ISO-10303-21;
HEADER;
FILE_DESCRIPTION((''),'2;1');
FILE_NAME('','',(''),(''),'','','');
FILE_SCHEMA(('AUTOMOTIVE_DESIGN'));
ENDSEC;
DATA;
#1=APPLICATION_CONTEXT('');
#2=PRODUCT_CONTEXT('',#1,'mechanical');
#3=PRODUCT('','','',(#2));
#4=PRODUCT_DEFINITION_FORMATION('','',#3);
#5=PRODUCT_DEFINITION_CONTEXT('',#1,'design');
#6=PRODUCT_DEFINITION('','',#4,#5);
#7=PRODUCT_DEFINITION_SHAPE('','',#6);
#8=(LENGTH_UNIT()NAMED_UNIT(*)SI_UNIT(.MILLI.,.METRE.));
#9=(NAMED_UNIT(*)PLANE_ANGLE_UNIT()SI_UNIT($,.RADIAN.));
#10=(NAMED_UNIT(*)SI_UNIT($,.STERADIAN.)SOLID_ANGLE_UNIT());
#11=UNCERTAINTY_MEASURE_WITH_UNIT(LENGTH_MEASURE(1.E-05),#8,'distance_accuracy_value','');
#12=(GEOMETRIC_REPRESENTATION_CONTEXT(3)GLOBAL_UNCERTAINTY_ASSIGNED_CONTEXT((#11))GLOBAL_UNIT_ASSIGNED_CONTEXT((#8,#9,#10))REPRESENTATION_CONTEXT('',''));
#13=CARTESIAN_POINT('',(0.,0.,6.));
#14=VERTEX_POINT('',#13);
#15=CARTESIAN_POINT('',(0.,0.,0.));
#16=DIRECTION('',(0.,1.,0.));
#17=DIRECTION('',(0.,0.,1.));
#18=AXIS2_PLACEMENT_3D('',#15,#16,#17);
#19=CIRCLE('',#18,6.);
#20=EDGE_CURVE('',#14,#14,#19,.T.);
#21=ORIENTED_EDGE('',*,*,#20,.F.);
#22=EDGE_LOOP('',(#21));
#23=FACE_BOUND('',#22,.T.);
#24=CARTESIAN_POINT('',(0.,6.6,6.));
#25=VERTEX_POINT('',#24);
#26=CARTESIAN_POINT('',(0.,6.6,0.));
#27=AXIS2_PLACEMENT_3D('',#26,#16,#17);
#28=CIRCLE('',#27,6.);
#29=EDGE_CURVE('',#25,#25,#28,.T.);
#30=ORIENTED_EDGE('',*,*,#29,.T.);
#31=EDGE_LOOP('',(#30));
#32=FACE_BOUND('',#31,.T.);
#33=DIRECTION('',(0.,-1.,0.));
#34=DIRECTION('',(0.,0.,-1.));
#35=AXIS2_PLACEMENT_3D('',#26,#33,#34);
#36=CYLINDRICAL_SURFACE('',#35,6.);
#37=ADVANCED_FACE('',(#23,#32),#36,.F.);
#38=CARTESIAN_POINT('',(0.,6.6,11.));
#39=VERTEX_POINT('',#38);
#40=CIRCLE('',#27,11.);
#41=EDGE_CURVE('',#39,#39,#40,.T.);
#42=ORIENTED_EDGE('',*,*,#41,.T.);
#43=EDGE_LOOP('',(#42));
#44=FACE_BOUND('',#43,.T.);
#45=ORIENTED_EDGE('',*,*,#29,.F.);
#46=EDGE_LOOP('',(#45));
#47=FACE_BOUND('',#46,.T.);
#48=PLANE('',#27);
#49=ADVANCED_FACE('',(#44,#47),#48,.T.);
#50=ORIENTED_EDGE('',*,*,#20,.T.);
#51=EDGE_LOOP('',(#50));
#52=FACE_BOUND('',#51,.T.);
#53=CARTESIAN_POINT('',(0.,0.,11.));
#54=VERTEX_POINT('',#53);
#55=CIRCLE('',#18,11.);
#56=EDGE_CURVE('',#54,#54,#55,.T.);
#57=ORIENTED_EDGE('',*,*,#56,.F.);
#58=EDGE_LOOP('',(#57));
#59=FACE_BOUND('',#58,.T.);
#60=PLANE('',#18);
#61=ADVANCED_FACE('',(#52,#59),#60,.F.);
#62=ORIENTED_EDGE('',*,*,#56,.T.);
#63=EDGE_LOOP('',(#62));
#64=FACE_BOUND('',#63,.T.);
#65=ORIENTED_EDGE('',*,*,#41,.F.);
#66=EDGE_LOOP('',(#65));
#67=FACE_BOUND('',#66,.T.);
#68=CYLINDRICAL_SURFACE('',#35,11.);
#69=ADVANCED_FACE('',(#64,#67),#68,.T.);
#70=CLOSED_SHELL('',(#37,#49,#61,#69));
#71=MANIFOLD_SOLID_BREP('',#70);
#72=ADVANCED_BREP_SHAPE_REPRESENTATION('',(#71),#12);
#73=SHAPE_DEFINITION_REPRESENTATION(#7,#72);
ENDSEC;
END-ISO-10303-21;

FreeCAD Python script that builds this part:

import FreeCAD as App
import Part
import Sketcher
from FreeCAD import Vector

doc = App.newDocument("Part")
body = doc.addObject("PartDesign::Body", "Body")

sketch1 = doc.addObject("Sketcher::SketchObject", "Sketch")
body.addObject(sketch1)
sketch1.AttachmentSupport = (doc.XZ_Plane, [""])
sketch1.MapMode = "FlatFace"
sketch1.addGeometry(Part.Circle(Vector(0, 0, 0), Vector(0, 0, 1), 11), False)
sketch1.addGeometry(Part.Circle(Vector(0, 0, 0), Vector(0, 0, 1), 6), False)
sketch1.addConstraint(Sketcher.Constraint("Coincident", 0, 3, -1, 1))
sketch1.addConstraint(Sketcher.Constraint("Coincident", 1, 3, -1, 1))
sketch1.addConstraint(Sketcher.Constraint("Diameter", 0, 22.0))
sketch1.addConstraint(Sketcher.Constraint("Diameter", 1, 12.0))
pad1 = doc.addObject("PartDesign::Pad", "Pad")
body.addObject(pad1)
pad1.Profile = sketch1
pad1.Length = 6.6
pad1.Reversed = True

doc.recompute()
